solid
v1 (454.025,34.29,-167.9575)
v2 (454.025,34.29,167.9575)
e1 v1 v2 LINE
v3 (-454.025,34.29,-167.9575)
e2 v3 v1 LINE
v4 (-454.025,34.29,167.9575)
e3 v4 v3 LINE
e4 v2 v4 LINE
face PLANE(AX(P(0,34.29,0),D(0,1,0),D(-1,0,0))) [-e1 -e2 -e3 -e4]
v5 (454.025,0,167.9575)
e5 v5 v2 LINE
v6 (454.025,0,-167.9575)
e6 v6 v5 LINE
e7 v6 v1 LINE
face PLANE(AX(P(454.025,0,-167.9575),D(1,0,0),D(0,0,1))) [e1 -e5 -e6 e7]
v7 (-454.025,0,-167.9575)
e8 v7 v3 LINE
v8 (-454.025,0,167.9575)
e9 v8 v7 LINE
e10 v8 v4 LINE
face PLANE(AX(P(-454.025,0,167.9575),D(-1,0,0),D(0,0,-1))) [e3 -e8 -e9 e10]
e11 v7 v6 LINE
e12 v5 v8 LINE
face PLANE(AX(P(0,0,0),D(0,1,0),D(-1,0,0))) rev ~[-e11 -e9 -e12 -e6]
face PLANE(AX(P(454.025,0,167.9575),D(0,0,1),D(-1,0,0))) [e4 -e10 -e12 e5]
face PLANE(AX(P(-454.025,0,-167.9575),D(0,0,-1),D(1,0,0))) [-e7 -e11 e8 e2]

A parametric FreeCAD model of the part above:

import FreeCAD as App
import Part
import Sketcher
from FreeCAD import Vector
Q = App.Units.Quantity

doc = App.newDocument("Part")
params = doc.addObject("Spreadsheet::Sheet", "Params")
for row, (alias, value) in enumerate([
    ("sketch1_width", "35.75 in"),
    ("sketch1_height", "13.225 in"),
    ("pad1_length", "1.35 in"),
], start=1):
    params.set(f"A{row}", alias)
    params.set(f"B{row}", "=" + value)
    params.setAlias(f"B{row}", alias)

body = doc.addObject("PartDesign::Body", "Body")

sketch1 = body.newObject("Sketcher::SketchObject", "Sketch")
sketch1.AttachmentSupport = (doc.getObject("XZ_Plane"), [""])
sketch1.MapMode = "FlatFace"
sketch1.addGeometry(Part.LineSegment(Vector(-454, 168, 0), Vector(454, 168, 0)), False)
sketch1.addGeometry(Part.LineSegment(Vector(454, 168, 0), Vector(454, -168, 0)), False)
sketch1.addGeometry(Part.LineSegment(Vector(454, -168, 0), Vector(-454, -168, 0)), False)
sketch1.addGeometry(Part.LineSegment(Vector(-454, -168, 0), Vector(-454, 168, 0)), False)
sketch1.addConstraint(Sketcher.Constraint("Coincident", 0, 2, 1, 1))
sketch1.addConstraint(Sketcher.Constraint("Coincident", 1, 2, 2, 1))
sketch1.addConstraint(Sketcher.Constraint("Coincident", 2, 2, 3, 1))
sketch1.addConstraint(Sketcher.Constraint("Coincident", 3, 2, 0, 1))
sketch1.addConstraint(Sketcher.Constraint("Horizontal", 0))
sketch1.addConstraint(Sketcher.Constraint("Vertical", 1))
sketch1.addConstraint(Sketcher.Constraint("Horizontal", 2))
sketch1.addConstraint(Sketcher.Constraint("Vertical", 3))
sketch1.addConstraint(Sketcher.Constraint("Symmetric", 0, 2, 2, 2, -1, 1))
sketch1.addConstraint(Sketcher.Constraint("DistanceX", 0, 1, 0, 2, Q("35.75 in")))
sketch1.addConstraint(Sketcher.Constraint("DistanceY", 1, 2, 1, 1, Q("13.225 in")))
sketch1.setExpression("Constraints[9]", "Params.sketch1_width")
sketch1.setExpression("Constraints[10]", "Params.sketch1_height")
pad1 = body.newObject("PartDesign::Pad", "Pad")
pad1.Profile = sketch1
pad1.setExpression("Length", "Params.pad1_length")
pad1.Reversed = True

doc.recompute()
